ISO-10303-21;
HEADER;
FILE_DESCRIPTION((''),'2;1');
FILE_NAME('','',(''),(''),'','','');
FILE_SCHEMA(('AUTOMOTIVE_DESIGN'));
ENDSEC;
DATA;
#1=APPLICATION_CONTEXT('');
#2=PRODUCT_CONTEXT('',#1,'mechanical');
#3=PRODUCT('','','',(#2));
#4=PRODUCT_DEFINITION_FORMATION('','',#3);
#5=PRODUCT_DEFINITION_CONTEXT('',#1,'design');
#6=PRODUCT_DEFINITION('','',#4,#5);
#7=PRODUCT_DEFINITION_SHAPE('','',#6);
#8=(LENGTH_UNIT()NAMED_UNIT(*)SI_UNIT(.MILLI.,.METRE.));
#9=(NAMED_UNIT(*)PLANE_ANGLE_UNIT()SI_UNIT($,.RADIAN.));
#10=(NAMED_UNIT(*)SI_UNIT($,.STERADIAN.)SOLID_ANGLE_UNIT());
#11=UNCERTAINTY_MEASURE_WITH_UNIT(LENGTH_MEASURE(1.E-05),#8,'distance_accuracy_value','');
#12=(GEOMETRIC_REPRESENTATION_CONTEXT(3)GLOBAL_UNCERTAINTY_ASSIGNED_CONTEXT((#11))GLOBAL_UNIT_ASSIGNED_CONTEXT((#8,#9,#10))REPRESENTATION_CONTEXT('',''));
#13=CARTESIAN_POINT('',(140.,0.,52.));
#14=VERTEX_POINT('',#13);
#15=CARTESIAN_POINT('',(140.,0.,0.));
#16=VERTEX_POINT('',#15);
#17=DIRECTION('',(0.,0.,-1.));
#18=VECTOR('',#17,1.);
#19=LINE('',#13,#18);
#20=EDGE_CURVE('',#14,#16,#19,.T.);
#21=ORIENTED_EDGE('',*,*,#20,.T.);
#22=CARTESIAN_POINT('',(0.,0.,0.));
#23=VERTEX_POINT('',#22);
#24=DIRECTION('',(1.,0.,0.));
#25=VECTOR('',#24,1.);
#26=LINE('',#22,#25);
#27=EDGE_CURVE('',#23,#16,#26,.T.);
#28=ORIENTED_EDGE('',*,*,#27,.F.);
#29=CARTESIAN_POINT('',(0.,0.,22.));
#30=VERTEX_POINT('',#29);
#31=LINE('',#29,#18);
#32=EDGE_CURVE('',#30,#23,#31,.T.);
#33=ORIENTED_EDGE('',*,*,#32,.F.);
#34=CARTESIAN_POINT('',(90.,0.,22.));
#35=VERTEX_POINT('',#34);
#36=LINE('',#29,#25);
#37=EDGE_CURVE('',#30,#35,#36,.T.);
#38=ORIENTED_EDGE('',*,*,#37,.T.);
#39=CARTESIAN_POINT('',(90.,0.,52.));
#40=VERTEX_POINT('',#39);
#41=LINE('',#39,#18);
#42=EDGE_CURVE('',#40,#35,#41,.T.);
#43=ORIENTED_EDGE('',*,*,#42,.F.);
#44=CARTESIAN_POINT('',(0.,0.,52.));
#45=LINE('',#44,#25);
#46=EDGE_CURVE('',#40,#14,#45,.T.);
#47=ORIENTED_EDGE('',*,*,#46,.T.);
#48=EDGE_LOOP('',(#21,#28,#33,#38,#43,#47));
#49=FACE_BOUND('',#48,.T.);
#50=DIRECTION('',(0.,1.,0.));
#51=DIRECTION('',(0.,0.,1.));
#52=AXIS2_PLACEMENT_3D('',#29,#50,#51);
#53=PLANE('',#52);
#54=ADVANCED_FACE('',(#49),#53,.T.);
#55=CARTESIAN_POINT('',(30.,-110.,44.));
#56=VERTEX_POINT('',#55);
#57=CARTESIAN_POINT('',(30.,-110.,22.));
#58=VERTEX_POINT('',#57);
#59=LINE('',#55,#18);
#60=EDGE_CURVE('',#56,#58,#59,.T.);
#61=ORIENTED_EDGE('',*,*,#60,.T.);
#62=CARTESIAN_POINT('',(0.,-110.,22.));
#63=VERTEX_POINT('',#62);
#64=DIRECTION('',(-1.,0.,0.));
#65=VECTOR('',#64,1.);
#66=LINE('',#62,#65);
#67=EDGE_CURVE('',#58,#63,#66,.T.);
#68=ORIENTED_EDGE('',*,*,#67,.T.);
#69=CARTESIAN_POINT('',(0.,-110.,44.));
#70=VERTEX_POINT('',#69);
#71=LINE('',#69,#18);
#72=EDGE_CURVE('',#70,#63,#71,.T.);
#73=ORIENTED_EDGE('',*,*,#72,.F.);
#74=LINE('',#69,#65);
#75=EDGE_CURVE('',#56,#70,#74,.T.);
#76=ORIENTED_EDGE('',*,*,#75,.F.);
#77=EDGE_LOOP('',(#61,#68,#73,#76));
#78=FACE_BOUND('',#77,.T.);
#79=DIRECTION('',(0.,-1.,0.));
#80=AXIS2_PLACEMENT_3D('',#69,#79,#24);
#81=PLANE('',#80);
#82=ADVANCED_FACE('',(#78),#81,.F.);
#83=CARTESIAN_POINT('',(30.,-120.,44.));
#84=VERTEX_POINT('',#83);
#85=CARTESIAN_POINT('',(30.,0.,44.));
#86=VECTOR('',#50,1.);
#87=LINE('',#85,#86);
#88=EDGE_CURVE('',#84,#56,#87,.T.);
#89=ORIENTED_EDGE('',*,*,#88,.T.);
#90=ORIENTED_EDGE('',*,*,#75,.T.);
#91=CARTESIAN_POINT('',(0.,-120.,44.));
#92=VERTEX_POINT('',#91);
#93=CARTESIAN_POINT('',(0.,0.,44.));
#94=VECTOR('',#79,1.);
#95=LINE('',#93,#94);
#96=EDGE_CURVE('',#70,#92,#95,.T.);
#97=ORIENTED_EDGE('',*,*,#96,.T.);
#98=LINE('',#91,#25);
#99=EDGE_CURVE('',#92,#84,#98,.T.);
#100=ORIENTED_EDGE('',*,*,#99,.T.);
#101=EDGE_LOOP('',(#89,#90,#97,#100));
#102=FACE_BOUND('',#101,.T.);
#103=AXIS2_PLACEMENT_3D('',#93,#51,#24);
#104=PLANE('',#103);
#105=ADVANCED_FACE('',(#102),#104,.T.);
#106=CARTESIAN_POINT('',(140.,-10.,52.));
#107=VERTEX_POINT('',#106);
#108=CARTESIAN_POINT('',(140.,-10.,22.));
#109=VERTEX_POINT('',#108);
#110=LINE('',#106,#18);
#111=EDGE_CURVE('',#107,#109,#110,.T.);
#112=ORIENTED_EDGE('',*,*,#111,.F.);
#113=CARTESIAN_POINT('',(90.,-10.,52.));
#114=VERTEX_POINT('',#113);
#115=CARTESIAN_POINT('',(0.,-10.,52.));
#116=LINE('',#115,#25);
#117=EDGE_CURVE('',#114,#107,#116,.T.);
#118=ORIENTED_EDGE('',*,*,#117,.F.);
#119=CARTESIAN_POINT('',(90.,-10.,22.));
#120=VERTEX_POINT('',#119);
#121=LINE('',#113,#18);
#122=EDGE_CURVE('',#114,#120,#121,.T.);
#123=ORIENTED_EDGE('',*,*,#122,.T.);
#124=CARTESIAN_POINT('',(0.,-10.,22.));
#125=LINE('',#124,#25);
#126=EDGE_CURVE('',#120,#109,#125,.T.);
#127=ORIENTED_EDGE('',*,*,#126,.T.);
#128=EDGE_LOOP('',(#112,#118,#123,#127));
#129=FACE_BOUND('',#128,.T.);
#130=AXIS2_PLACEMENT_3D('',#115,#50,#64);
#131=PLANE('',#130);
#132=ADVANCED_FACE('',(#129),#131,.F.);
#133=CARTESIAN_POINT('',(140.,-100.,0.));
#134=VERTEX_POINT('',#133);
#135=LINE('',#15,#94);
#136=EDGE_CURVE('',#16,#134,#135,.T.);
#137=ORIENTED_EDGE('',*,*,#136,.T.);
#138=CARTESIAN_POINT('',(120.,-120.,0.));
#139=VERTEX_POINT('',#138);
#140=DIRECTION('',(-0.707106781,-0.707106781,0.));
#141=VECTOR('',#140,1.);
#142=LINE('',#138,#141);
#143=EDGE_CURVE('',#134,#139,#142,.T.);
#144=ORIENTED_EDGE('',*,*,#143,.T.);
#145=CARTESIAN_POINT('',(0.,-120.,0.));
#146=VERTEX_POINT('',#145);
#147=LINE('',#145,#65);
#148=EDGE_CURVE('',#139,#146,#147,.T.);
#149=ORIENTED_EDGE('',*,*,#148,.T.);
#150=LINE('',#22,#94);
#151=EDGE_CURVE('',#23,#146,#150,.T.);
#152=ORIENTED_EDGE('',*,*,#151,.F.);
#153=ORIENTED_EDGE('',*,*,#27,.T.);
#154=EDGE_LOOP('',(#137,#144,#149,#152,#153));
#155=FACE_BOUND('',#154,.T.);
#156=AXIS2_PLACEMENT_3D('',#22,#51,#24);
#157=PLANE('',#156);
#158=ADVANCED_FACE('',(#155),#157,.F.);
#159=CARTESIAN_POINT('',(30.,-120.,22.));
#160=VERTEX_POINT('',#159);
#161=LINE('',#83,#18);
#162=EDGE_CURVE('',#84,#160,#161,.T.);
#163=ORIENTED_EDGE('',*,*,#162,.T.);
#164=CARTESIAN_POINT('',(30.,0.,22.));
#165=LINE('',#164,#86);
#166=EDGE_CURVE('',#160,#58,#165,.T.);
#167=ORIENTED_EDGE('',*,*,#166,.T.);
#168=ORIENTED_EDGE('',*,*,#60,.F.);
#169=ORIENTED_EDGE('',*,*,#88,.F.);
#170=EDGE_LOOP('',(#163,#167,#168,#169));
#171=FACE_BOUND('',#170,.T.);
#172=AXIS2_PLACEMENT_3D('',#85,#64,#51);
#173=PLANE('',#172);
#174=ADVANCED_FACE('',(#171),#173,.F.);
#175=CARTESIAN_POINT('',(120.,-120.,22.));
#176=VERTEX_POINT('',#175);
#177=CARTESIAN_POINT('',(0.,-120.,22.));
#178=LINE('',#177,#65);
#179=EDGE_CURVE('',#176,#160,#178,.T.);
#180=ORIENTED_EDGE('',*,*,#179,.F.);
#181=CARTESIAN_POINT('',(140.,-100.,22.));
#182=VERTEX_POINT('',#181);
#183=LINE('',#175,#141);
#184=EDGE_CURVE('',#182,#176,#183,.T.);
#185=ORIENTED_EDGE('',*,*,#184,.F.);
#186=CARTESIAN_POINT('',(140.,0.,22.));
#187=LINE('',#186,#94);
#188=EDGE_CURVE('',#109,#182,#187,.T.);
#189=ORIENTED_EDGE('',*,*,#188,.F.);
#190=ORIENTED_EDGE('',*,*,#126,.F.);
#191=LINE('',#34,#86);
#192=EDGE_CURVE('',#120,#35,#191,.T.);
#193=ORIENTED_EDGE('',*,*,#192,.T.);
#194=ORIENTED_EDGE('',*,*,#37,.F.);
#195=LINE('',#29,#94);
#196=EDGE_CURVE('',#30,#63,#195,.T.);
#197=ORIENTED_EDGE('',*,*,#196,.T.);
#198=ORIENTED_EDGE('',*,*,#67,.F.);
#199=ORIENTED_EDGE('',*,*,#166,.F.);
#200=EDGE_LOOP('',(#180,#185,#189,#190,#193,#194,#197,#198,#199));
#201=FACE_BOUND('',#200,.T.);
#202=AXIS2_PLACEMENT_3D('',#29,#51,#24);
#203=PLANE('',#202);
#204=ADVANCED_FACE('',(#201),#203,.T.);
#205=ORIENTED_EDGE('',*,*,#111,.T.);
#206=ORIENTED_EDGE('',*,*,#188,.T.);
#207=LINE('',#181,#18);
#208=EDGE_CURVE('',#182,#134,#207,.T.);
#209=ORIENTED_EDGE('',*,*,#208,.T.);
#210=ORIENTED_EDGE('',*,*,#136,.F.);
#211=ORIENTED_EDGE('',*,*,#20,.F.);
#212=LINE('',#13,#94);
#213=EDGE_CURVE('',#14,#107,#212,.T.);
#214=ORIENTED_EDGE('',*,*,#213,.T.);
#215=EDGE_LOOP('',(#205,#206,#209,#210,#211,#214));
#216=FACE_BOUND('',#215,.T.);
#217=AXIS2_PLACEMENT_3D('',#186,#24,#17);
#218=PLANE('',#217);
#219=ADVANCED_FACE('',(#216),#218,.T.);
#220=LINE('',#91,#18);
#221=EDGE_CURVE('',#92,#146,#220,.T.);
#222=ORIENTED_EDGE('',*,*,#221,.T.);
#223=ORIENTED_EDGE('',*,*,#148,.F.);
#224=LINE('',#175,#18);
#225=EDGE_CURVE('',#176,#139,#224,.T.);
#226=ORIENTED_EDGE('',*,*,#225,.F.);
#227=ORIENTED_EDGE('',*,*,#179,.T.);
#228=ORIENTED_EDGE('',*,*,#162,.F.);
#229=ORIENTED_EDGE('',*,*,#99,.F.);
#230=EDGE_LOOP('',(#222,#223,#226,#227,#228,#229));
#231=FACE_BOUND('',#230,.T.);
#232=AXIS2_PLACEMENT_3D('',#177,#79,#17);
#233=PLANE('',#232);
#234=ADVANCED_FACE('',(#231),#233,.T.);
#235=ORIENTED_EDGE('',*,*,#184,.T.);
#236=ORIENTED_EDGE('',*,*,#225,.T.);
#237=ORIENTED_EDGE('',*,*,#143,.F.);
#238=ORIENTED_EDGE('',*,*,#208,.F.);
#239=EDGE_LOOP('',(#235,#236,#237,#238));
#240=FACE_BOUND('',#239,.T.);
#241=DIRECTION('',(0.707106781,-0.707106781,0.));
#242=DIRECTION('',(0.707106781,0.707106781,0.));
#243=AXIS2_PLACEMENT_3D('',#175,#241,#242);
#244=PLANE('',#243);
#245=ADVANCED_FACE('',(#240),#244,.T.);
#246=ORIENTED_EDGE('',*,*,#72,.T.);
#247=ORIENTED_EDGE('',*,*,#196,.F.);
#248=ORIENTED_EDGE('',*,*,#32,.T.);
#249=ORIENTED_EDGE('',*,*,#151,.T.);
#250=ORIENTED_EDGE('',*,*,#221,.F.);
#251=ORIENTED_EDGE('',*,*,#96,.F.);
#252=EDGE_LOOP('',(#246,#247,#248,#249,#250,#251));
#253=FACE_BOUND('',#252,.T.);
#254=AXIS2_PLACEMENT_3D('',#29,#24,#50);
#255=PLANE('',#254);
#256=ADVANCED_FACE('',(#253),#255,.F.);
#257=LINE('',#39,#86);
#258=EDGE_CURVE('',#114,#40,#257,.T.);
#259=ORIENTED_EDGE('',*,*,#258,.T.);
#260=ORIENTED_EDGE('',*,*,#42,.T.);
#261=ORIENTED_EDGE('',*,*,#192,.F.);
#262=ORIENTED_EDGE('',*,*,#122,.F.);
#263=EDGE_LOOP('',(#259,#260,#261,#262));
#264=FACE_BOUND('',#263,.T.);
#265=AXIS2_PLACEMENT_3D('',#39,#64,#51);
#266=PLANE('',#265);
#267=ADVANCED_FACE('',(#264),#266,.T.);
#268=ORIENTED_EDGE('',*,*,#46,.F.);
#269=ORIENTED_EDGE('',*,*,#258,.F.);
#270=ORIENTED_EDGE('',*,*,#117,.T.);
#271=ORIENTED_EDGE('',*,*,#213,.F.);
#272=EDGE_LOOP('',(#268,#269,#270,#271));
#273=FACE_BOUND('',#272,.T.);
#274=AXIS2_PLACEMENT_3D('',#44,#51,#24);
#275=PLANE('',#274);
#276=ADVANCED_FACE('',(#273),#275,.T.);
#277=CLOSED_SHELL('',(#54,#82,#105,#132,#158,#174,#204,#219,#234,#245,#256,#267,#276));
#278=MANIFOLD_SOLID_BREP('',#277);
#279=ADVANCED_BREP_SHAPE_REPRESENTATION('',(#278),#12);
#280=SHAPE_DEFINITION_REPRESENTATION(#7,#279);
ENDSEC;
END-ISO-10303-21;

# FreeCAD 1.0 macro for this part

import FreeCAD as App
import Part
import Sketcher


def add_polygon(sketch, points):
    """Adds a closed chain of lines whose ends are joined by coincident constraints."""
    first, n = sketch.GeometryCount, len(points)
    for a, b in zip(points, points[1:] + points[:1]):
        sketch.addGeometry(Part.LineSegment(App.Vector(*a, 0), App.Vector(*b, 0)), False)
    for i in range(n):
        sketch.addConstraint(Sketcher.Constraint("Coincident", first + i, 2, first + (i + 1) % n, 1))

doc = App.newDocument("Part")
body = doc.addObject("PartDesign::Body", "Body")

# Sketch on XY plane
sketch1 = doc.addObject("Sketcher::SketchObject", "Sketch")
body.addObject(sketch1)
sketch1.AttachmentSupport = (doc.XY_Plane, [""])
sketch1.MapMode = "FlatFace"
add_polygon(sketch1, [(90, 0), (0, 0), (0, -110), (30, -110), (30, -120), (120, -120), (140, -100), (140, -10), (90, -10)])  # lines 0-8
sketch1.addConstraint(Sketcher.Constraint("Horizontal", 0))
sketch1.addConstraint(Sketcher.Constraint("Vertical", 1))
sketch1.addConstraint(Sketcher.Constraint("Horizontal", 2))
sketch1.addConstraint(Sketcher.Constraint("Vertical", 3))
sketch1.addConstraint(Sketcher.Constraint("Horizontal", 4))
sketch1.addConstraint(Sketcher.Constraint("Vertical", 6))
sketch1.addConstraint(Sketcher.Constraint("Horizontal", 7))
sketch1.addConstraint(Sketcher.Constraint("Vertical", 8))
sketch1.addConstraint(Sketcher.Constraint("Coincident", 0, 2, -1, 1))
sketch1.addConstraint(Sketcher.Constraint("Equal", 0, 4))
sketch1.addConstraint(Sketcher.Constraint("Equal", 4, 6))
sketch1.addConstraint(Sketcher.Constraint("Equal", 3, 8))
sketch1.addConstraint(Sketcher.Constraint("DistanceX", 0, 2, 0, 1, 90.0))
sketch1.addConstraint(Sketcher.Constraint("DistanceX", 2, 1, 2, 2, 30.0))
sketch1.addConstraint(Sketcher.Constraint("DistanceX", 7, 2, 7, 1, 50.0))
sketch1.addConstraint(Sketcher.Constraint("DistanceY", 1, 2, 1, 1, 110.0))
sketch1.addConstraint(Sketcher.Constraint("DistanceY", 3, 2, 3, 1, 10.0))
pad1 = doc.addObject("PartDesign::Pad", "Pad")
body.addObject(pad1)
pad1.Profile = sketch1
pad1.Length = 22

# Sketch on XY plane
sketch2 = doc.addObject("Sketcher::SketchObject", "Sketch001")
body.addObject(sketch2)
sketch2.AttachmentSupport = (doc.XY_Plane, [""])
sketch2.MapMode = "FlatFace"
add_polygon(sketch2, [(0, -110), (0, -120), (30, -120), (30, -110)])  # lines 0-3
sketch2.addConstraint(Sketcher.Constraint("Vertical", 0))
sketch2.addConstraint(Sketcher.Constraint("Horizontal", 1))
sketch2.addConstraint(Sketcher.Constraint("Vertical", 2))
sketch2.addConstraint(Sketcher.Constraint("Horizontal", 3))
sketch2.addConstraint(Sketcher.Constraint("PointOnObject", 0, 2, -2))
sketch2.addConstraint(Sketcher.Constraint("DistanceX", 1, 1, 1, 2, 30.0))
sketch2.addConstraint(Sketcher.Constraint("DistanceY", 0, 2, 0, 1, 10.0))
sketch2.addConstraint(Sketcher.Constraint("DistanceY", 0, 2, -1, 1, 120.0))
pad2 = doc.addObject("PartDesign::Pad", "Pad001")
body.addObject(pad2)
pad2.Profile = sketch2
pad2.Length = 44

# Sketch on XY plane
sketch3 = doc.addObject("Sketcher::SketchObject", "Sketch002")
body.addObject(sketch3)
sketch3.AttachmentSupport = (doc.XY_Plane, [""])
sketch3.MapMode = "FlatFace"
add_polygon(sketch3, [(110, 0), (110, -10), (140, -10), (140, 0)])  # lines 0-3
sketch3.addConstraint(Sketcher.Constraint("Vertical", 0))
sketch3.addConstraint(Sketcher.Constraint("Horizontal", 1))
sketch3.addConstraint(Sketcher.Constraint("Vertical", 2))
sketch3.addConstraint(Sketcher.Constraint("Horizontal", 3))
sketch3.addConstraint(Sketcher.Constraint("PointOnObject", 2, 2, -1))
sketch3.addConstraint(Sketcher.Constraint("DistanceX", 1, 1, 1, 2, 30.0))
sketch3.addConstraint(Sketcher.Constraint("DistanceY", 0, 2, 0, 1, 10.0))
sketch3.addConstraint(Sketcher.Constraint("DistanceX", -1, 1, 0, 2, 110.0))
pad3 = doc.addObject("PartDesign::Pad", "Pad002")
body.addObject(pad3)
pad3.Profile = sketch3
pad3.Length = 52

# Sketch on XY plane
sketch4 = doc.addObject("Sketcher::SketchObject", "Sketch003")
body.addObject(sketch4)
sketch4.AttachmentSupport = (doc.XY_Plane, [""])
sketch4.MapMode = "FlatFace"
add_polygon(sketch4, [(90, 0), (90, -10), (110, -10), (110, 0)])  # lines 0-3
sketch4.addConstraint(Sketcher.Constraint("Vertical", 0))
sketch4.addConstraint(Sketcher.Constraint("Horizontal", 1))
sketch4.addConstraint(Sketcher.Constraint("Vertical", 2))
sketch4.addConstraint(Sketcher.Constraint("Horizontal", 3))
sketch4.addConstraint(Sketcher.Constraint("PointOnObject", 2, 2, -1))
sketch4.addConstraint(Sketcher.Constraint("DistanceX", 1, 1, 1, 2, 20.0))
sketch4.addConstraint(Sketcher.Constraint("DistanceY", 0, 2, 0, 1, 10.0))
sketch4.addConstraint(Sketcher.Constraint("DistanceX", -1, 1, 0, 2, 90.0))
pad4 = doc.addObject("PartDesign::Pad", "Pad003")
body.addObject(pad4)
pad4.Profile = sketch4
pad4.Length = 52

doc.recompute()
